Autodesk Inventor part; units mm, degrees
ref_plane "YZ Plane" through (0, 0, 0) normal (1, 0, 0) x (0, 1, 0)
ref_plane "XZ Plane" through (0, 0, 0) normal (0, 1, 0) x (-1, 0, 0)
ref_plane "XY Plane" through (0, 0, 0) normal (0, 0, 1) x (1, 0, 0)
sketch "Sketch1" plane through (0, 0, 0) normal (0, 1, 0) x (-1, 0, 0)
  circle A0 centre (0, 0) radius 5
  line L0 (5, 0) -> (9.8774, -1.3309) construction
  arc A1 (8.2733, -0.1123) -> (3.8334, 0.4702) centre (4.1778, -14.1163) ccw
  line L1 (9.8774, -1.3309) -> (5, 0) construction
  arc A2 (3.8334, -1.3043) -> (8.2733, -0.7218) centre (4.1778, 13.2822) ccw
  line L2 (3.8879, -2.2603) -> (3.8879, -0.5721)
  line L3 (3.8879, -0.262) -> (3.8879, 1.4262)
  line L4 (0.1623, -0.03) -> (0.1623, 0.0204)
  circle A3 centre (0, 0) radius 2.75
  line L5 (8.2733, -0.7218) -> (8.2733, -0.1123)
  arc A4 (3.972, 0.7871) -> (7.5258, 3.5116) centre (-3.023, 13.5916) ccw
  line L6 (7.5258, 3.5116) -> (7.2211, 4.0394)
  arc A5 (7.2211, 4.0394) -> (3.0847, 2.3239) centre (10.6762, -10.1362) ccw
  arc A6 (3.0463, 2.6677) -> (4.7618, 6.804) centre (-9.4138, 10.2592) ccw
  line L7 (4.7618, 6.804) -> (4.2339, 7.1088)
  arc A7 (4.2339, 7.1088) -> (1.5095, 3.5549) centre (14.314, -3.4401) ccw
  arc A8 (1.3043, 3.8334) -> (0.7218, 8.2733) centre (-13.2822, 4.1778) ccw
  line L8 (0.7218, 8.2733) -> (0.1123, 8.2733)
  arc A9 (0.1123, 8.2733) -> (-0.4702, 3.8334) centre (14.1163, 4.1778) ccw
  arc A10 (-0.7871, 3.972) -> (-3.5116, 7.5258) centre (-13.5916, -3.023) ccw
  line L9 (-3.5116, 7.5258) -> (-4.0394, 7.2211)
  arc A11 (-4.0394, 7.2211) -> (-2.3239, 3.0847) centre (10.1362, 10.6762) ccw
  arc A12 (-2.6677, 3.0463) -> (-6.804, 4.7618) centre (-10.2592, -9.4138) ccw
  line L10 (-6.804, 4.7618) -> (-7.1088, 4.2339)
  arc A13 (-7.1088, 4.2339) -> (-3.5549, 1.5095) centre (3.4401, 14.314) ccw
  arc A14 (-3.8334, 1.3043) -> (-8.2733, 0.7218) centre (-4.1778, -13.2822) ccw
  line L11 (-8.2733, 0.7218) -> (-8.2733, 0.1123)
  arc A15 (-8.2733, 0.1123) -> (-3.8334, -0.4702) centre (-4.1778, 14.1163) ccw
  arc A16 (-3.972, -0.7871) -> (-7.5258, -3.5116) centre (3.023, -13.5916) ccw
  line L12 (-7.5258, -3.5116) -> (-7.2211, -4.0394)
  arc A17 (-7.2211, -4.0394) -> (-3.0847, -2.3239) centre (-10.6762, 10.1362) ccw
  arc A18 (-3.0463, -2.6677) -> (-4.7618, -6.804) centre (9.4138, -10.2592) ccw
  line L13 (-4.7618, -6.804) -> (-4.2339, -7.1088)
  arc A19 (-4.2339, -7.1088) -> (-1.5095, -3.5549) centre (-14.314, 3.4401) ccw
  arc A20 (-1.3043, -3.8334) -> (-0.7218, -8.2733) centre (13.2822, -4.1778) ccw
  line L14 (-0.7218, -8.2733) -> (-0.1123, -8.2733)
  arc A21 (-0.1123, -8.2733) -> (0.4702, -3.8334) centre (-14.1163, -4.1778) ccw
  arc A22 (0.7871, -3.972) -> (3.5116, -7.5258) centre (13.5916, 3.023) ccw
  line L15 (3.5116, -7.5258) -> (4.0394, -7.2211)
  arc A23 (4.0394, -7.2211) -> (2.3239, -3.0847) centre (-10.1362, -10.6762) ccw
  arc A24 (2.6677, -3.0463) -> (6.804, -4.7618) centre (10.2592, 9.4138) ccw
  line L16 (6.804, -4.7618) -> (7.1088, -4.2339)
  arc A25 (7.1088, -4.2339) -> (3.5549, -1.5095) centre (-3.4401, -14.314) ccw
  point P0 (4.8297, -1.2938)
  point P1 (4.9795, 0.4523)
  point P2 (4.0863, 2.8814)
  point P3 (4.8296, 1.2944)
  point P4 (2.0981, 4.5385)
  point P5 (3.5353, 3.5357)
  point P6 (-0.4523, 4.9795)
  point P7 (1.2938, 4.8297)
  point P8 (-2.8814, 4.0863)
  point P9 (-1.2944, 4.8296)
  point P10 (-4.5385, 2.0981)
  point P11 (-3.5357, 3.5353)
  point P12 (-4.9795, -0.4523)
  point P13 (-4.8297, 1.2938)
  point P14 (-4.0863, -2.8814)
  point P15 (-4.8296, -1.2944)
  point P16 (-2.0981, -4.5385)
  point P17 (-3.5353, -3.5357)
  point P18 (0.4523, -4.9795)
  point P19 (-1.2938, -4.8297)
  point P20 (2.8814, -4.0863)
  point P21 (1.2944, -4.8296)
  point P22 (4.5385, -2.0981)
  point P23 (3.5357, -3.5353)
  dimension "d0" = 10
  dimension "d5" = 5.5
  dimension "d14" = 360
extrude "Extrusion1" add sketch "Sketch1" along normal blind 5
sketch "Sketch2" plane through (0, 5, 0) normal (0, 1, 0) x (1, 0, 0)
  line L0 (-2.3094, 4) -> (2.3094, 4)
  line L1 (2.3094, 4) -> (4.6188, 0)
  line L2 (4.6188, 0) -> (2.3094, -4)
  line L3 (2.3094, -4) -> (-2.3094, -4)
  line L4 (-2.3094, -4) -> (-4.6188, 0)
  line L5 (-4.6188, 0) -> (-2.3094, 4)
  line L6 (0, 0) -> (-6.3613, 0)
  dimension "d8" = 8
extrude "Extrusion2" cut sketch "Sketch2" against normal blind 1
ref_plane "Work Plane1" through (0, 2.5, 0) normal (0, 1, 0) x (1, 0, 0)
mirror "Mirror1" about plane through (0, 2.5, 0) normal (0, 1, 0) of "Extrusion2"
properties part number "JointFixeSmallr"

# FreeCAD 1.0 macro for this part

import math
import FreeCAD as App
import Part
import Sketcher
Q = App.Units.Quantity


def add_polygon(sketch, points):
    """Adds a closed chain of lines whose ends are joined by coincident constraints."""
    first, n = sketch.GeometryCount, len(points)
    for a, b in zip(points, points[1:] + points[:1]):
        sketch.addGeometry(Part.LineSegment(App.Vector(*a, 0), App.Vector(*b, 0)), False)
    for i in range(n):
        sketch.addConstraint(Sketcher.Constraint("Coincident", first + i, 2, first + (i + 1) % n, 1))

doc = App.newDocument("Part")
params = doc.addObject("Spreadsheet::Sheet", "Params")
for row, (alias, value) in enumerate([
    ("sketch1_radius", "5 mm"),
    ("sketch1_diameter", "5.5 mm"),
    ("pad1_length", "5 mm"),
    ("pocket1_length", "1 mm"),
], start=1):
    params.set(f"A{row}", alias)
    params.set(f"B{row}", "=" + value)
    params.setAlias(f"B{row}", alias)

body = doc.addObject("PartDesign::Body", "Body")

# Sketch on XZ plane
sketch1 = body.newObject("Sketcher::SketchObject", "Sketch")
sketch1.AttachmentSupport = (doc.getObject("XZ_Plane"), [""])
sketch1.MapMode = "FlatFace"
sketch1.addGeometry(Part.ArcOfCircle(Part.Circle(App.Vector(0, 0, 0), App.Vector(0, 0, 1), 5), math.radians(-135), math.radians(-125.19)), False)
sketch1.addGeometry(Part.ArcOfCircle(Part.Circle(App.Vector(-10.3, 9.4, 0), App.Vector(0, 0, 1), 14.6), math.radians(-76.3), math.radians(-62.56)), False)
sketch1.addGeometry(Part.LineSegment(App.Vector(-6.8, -4.8, 0), App.Vector(-7.1, -4.2, 0)), False)
sketch1.addGeometry(Part.ArcOfCircle(Part.Circle(App.Vector(3.4, -14.3, 0), App.Vector(0, 0, 1), 14.6), math.radians(123.15), math.radians(136.3)), False)
sketch1.addGeometry(Part.ArcOfCircle(Part.Circle(App.Vector(0, 0, 0), App.Vector(0, 0, 1), 5), math.radians(-165), math.radians(-155.19)), False)
sketch1.addGeometry(Part.ArcOfCircle(Part.Circle(App.Vector(-4.2, 13.3, 0), App.Vector(0, 0, 1), 14.6), math.radians(-106.3), math.radians(-92.56)), False)
sketch1.addGeometry(Part.LineSegment(App.Vector(-8.3, -0.7, 0), App.Vector(-8.3, -0.1, 0)), False)
sketch1.addGeometry(Part.ArcOfCircle(Part.Circle(App.Vector(-4.2, -14.1, 0), App.Vector(0, 0, 1), 14.6), math.radians(93.15), math.radians(106.3)), False)
sketch1.addGeometry(Part.ArcOfCircle(Part.Circle(App.Vector(0, 0, 0), App.Vector(0, 0, 1), 5), math.radians(165), math.radians(174.81)), False)
sketch1.addGeometry(Part.ArcOfCircle(Part.Circle(App.Vector(3, 13.6, 0), App.Vector(0, 0, 1), 14.6), math.radians(-136.3), math.radians(-122.56)), False)
sketch1.addGeometry(Part.LineSegment(App.Vector(-7.5, 3.5, 0), App.Vector(-7.2, 4, 0)), False)
sketch1.addGeometry(Part.ArcOfCircle(Part.Circle(App.Vector(-10.7, -10.1, 0), App.Vector(0, 0, 1), 14.6), math.radians(63.15), math.radians(76.3)), False)
sketch1.addGeometry(Part.ArcOfCircle(Part.Circle(App.Vector(0, 0, 0), App.Vector(0, 0, 1), 5), math.radians(135), math.radians(144.81)), False)
sketch1.addGeometry(Part.ArcOfCircle(Part.Circle(App.Vector(9.4, 10.3, 0), App.Vector(0, 0, 1), 14.6), math.radians(-166.3), math.radians(-152.56)), False)
sketch1.addGeometry(Part.LineSegment(App.Vector(-4.8, 6.8, 0), App.Vector(-4.2, 7.1, 0)), False)
sketch1.addGeometry(Part.ArcOfCircle(Part.Circle(App.Vector(-14.3, -3.4, 0), App.Vector(0, 0, 1), 14.6), math.radians(33.15), math.radians(46.3)), False)
sketch1.addGeometry(Part.ArcOfCircle(Part.Circle(App.Vector(0, 0, 0), App.Vector(0, 0, 1), 5), math.radians(105), math.radians(114.81)), False)
sketch1.addGeometry(Part.ArcOfCircle(Part.Circle(App.Vector(13.3, 4.2, 0), App.Vector(0, 0, 1), 14.6), math.radians(163.7), math.radians(177.44)), False)
sketch1.addGeometry(Part.LineSegment(App.Vector(-0.7, 8.3, 0), App.Vector(-0.1, 8.3, 0)), False)
sketch1.addGeometry(Part.ArcOfCircle(Part.Circle(App.Vector(-14.1, 4.2, 0), App.Vector(0, 0, 1), 14.6), math.radians(3.15), math.radians(16.3)), False)
sketch1.addGeometry(Part.ArcOfCircle(Part.Circle(App.Vector(0, 0, 0), App.Vector(0, 0, 1), 5), math.radians(75), math.radians(84.81)), False)
sketch1.addGeometry(Part.ArcOfCircle(Part.Circle(App.Vector(13.6, -3, 0), App.Vector(0, 0, 1), 14.6), math.radians(133.7), math.radians(147.44)), False)
sketch1.addGeometry(Part.LineSegment(App.Vector(3.5, 7.5, 0), App.Vector(4, 7.2, 0)), False)
sketch1.addGeometry(Part.ArcOfCircle(Part.Circle(App.Vector(-10.1, 10.7, 0), App.Vector(0, 0, 1), 14.6), math.radians(-26.85), math.radians(-13.7)), False)
sketch1.addGeometry(Part.ArcOfCircle(Part.Circle(App.Vector(0, 0, 0), App.Vector(0, 0, 1), 5), math.radians(45), math.radians(54.81)), False)
sketch1.addGeometry(Part.ArcOfCircle(Part.Circle(App.Vector(10.3, -9.4, 0), App.Vector(0, 0, 1), 14.6), math.radians(103.7), math.radians(117.44)), False)
sketch1.addGeometry(Part.LineSegment(App.Vector(6.8, 4.8, 0), App.Vector(7.1, 4.2, 0)), False)
sketch1.addGeometry(Part.ArcOfCircle(Part.Circle(App.Vector(-3.4, 14.3, 0), App.Vector(0, 0, 1), 14.6), math.radians(-56.85), math.radians(-43.7)), False)
sketch1.addGeometry(Part.ArcOfCircle(Part.Circle(App.Vector(0, 0, 0), App.Vector(0, 0, 1), 5), math.radians(15), math.radians(24.81)), False)
sketch1.addGeometry(Part.ArcOfCircle(Part.Circle(App.Vector(4.2, -13.3, 0), App.Vector(0, 0, 1), 14.6), math.radians(73.7), math.radians(87.44)), False)
sketch1.addGeometry(Part.LineSegment(App.Vector(8.3, 0.7, 0), App.Vector(8.3, 0.1, 0)), False)
sketch1.addGeometry(Part.ArcOfCircle(Part.Circle(App.Vector(4.2, 14.1, 0), App.Vector(0, 0, 1), 14.6), math.radians(-86.85), math.radians(-73.7)), False)
sketch1.addGeometry(Part.ArcOfCircle(Part.Circle(App.Vector(0, 0, 0), App.Vector(0, 0, 1), 5), math.radians(-15), math.radians(-5.19)), False)
sketch1.addGeometry(Part.ArcOfCircle(Part.Circle(App.Vector(-3, -13.6, 0), App.Vector(0, 0, 1), 14.6), math.radians(43.7), math.radians(57.44)), False)
sketch1.addGeometry(Part.LineSegment(App.Vector(7.5, -3.5, 0), App.Vector(7.2, -4, 0)), False)
sketch1.addGeometry(Part.ArcOfCircle(Part.Circle(App.Vector(10.7, 10.1, 0), App.Vector(0, 0, 1), 14.6), math.radians(-116.85), math.radians(-103.7)), False)
sketch1.addGeometry(Part.ArcOfCircle(Part.Circle(App.Vector(0, 0, 0), App.Vector(0, 0, 1), 5), math.radians(-45), math.radians(-35.19)), False)
sketch1.addGeometry(Part.ArcOfCircle(Part.Circle(App.Vector(-9.4, -10.3, 0), App.Vector(0, 0, 1), 14.6), math.radians(13.7), math.radians(27.44)), False)
sketch1.addGeometry(Part.LineSegment(App.Vector(4.8, -6.8, 0), App.Vector(4.2, -7.1, 0)), False)
sketch1.addGeometry(Part.ArcOfCircle(Part.Circle(App.Vector(14.3, 3.4, 0), App.Vector(0, 0, 1), 14.6), math.radians(-146.85), math.radians(-133.7)), False)
sketch1.addGeometry(Part.ArcOfCircle(Part.Circle(App.Vector(0, 0, 0), App.Vector(0, 0, 1), 5), math.radians(-75), math.radians(-65.19)), False)
sketch1.addGeometry(Part.ArcOfCircle(Part.Circle(App.Vector(-13.3, -4.2, 0), App.Vector(0, 0, 1), 14.6), math.radians(-16.3), math.radians(-2.56)), False)
sketch1.addGeometry(Part.LineSegment(App.Vector(0.7, -8.3, 0), App.Vector(0.1, -8.3, 0)), False)
sketch1.addGeometry(Part.ArcOfCircle(Part.Circle(App.Vector(14.1, -4.2, 0), App.Vector(0, 0, 1), 14.6), math.radians(-176.85), math.radians(-163.7)), False)
sketch1.addGeometry(Part.ArcOfCircle(Part.Circle(App.Vector(0, 0, 0), App.Vector(0, 0, 1), 5), math.radians(-105), math.radians(-95.19)), False)
sketch1.addGeometry(Part.ArcOfCircle(Part.Circle(App.Vector(-13.6, 3, 0), App.Vector(0, 0, 1), 14.6), math.radians(-46.3), math.radians(-32.56)), False)
sketch1.addGeometry(Part.LineSegment(App.Vector(-3.5, -7.5, 0), App.Vector(-4, -7.2, 0)), False)
sketch1.addGeometry(Part.ArcOfCircle(Part.Circle(App.Vector(10.1, -10.7, 0), App.Vector(0, 0, 1), 14.6), math.radians(153.15), math.radians(166.3)), False)
sketch1.addGeometry(Part.Circle(App.Vector(0, 0, 0), App.Vector(0, 0, 1), 2.8), False)
sketch1.addConstraint(Sketcher.Constraint("Coincident", 0, 1, 1, 2))
sketch1.addConstraint(Sketcher.Constraint("Coincident", 1, 1, 2, 1))
sketch1.addConstraint(Sketcher.Constraint("Coincident", 2, 2, 3, 2))
sketch1.addConstraint(Sketcher.Constraint("Coincident", 3, 1, 4, 2))
sketch1.addConstraint(Sketcher.Constraint("Coincident", 4, 1, 5, 2))
sketch1.addConstraint(Sketcher.Constraint("Coincident", 5, 1, 6, 1))
sketch1.addConstraint(Sketcher.Constraint("Coincident", 6, 2, 7, 2))
sketch1.addConstraint(Sketcher.Constraint("Coincident", 7, 1, 8, 2))
sketch1.addConstraint(Sketcher.Constraint("Coincident", 8, 1, 9, 2))
sketch1.addConstraint(Sketcher.Constraint("Coincident", 9, 1, 10, 1))
sketch1.addConstraint(Sketcher.Constraint("Coincident", 10, 2, 11, 2))
sketch1.addConstraint(Sketcher.Constraint("Coincident", 11, 1, 12, 2))
sketch1.addConstraint(Sketcher.Constraint("Coincident", 12, 1, 13, 2))
sketch1.addConstraint(Sketcher.Constraint("Coincident", 13, 1, 14, 1))
sketch1.addConstraint(Sketcher.Constraint("Coincident", 14, 2, 15, 2))
sketch1.addConstraint(Sketcher.Constraint("Coincident", 15, 1, 16, 2))
sketch1.addConstraint(Sketcher.Constraint("Coincident", 16, 1, 17, 2))
sketch1.addConstraint(Sketcher.Constraint("Coincident", 17, 1, 18, 1))
sketch1.addConstraint(Sketcher.Constraint("Coincident", 18, 2, 19, 2))
sketch1.addConstraint(Sketcher.Constraint("Coincident", 19, 1, 20, 2))
sketch1.addConstraint(Sketcher.Constraint("Coincident", 20, 1, 21, 2))
sketch1.addConstraint(Sketcher.Constraint("Coincident", 21, 1, 22, 1))
sketch1.addConstraint(Sketcher.Constraint("Coincident", 22, 2, 23, 2))
sketch1.addConstraint(Sketcher.Constraint("Coincident", 23, 1, 24, 2))
sketch1.addConstraint(Sketcher.Constraint("Coincident", 24, 1, 25, 2))
sketch1.addConstraint(Sketcher.Constraint("Coincident", 25, 1, 26, 1))
sketch1.addConstraint(Sketcher.Constraint("Coincident", 26, 2, 27, 2))
sketch1.addConstraint(Sketcher.Constraint("Coincident", 27, 1, 28, 2))
sketch1.addConstraint(Sketcher.Constraint("Coincident", 28, 1, 29, 2))
sketch1.addConstraint(Sketcher.Constraint("Coincident", 29, 1, 30, 1))
sketch1.addConstraint(Sketcher.Constraint("Coincident", 30, 2, 31, 2))
sketch1.addConstraint(Sketcher.Constraint("Coincident", 31, 1, 32, 2))
sketch1.addConstraint(Sketcher.Constraint("Coincident", 32, 1, 33, 2))
sketch1.addConstraint(Sketcher.Constraint("Coincident", 33, 1, 34, 1))
sketch1.addConstraint(Sketcher.Constraint("Coincident", 34, 2, 35, 2))
sketch1.addConstraint(Sketcher.Constraint("Coincident", 35, 1, 36, 2))
sketch1.addConstraint(Sketcher.Constraint("Coincident", 36, 1, 37, 2))
sketch1.addConstraint(Sketcher.Constraint("Coincident", 37, 1, 38, 1))
sketch1.addConstraint(Sketcher.Constraint("Coincident", 38, 2, 39, 2))
sketch1.addConstraint(Sketcher.Constraint("Coincident", 39, 1, 40, 2))
sketch1.addConstraint(Sketcher.Constraint("Coincident", 40, 1, 41, 2))
sketch1.addConstraint(Sketcher.Constraint("Coincident", 41, 1, 42, 1))
sketch1.addConstraint(Sketcher.Constraint("Coincident", 42, 2, 43, 2))
sketch1.addConstraint(Sketcher.Constraint("Coincident", 43, 1, 44, 2))
sketch1.addConstraint(Sketcher.Constraint("Coincident", 44, 1, 45, 2))
sketch1.addConstraint(Sketcher.Constraint("Coincident", 45, 1, 46, 1))
sketch1.addConstraint(Sketcher.Constraint("Coincident", 46, 2, 47, 2))
sketch1.addConstraint(Sketcher.Constraint("Coincident", 47, 1, 0, 2))
sketch1.addConstraint(Sketcher.Constraint("Vertical", 6))
sketch1.addConstraint(Sketcher.Constraint("Horizontal", 18))
sketch1.addConstraint(Sketcher.Constraint("Vertical", 30))
sketch1.addConstraint(Sketcher.Constraint("Horizontal", 42))
sketch1.addConstraint(Sketcher.Constraint("Coincident", 0, 3, -1, 1))
sketch1.addConstraint(Sketcher.Constraint("Coincident", 4, 3, -1, 1))
sketch1.addConstraint(Sketcher.Constraint("Coincident", 8, 3, -1, 1))
sketch1.addConstraint(Sketcher.Constraint("Coincident", 12, 3, -1, 1))
sketch1.addConstraint(Sketcher.Constraint("Coincident", 16, 3, -1, 1))
sketch1.addConstraint(Sketcher.Constraint("Coincident", 20, 3, -1, 1))
sketch1.addConstraint(Sketcher.Constraint("Coincident", 24, 3, -1, 1))
sketch1.addConstraint(Sketcher.Constraint("Coincident", 28, 3, -1, 1))
sketch1.addConstraint(Sketcher.Constraint("Coincident", 32, 3, -1, 1))
sketch1.addConstraint(Sketcher.Constraint("Coincident", 36, 3, -1, 1))
sketch1.addConstraint(Sketcher.Constraint("Coincident", 40, 3, -1, 1))
sketch1.addConstraint(Sketcher.Constraint("Coincident", 44, 3, -1, 1))
sketch1.addConstraint(Sketcher.Constraint("Coincident", 48, 3, -1, 1))
sketch1.addConstraint(Sketcher.Constraint("Equal", 0, 4))
sketch1.addConstraint(Sketcher.Constraint("Equal", 5, 7))
sketch1.addConstraint(Sketcher.Constraint("Equal", 4, 8))
sketch1.addConstraint(Sketcher.Constraint("Equal", 7, 11))
sketch1.addConstraint(Sketcher.Constraint("Equal", 8, 12))
sketch1.addConstraint(Sketcher.Constraint("Equal", 1, 13))
sketch1.addConstraint(Sketcher.Constraint("Equal", 3, 15))
sketch1.addConstraint(Sketcher.Constraint("Equal", 12, 16))
sketch1.addConstraint(Sketcher.Constraint("Equal", 11, 17))
sketch1.addConstraint(Sketcher.Constraint("Equal", 17, 19))
sketch1.addConstraint(Sketcher.Constraint("Equal", 16, 20))
sketch1.addConstraint(Sketcher.Constraint("Equal", 9, 21))
sketch1.addConstraint(Sketcher.Constraint("Equal", 19, 23))
sketch1.addConstraint(Sketcher.Constraint("Equal", 20, 24))
sketch1.addConstraint(Sketcher.Constraint("Equal", 13, 25))
sketch1.addConstraint(Sketcher.Constraint("Equal", 15, 27))
sketch1.addConstraint(Sketcher.Constraint("Equal", 24, 28))
sketch1.addConstraint(Sketcher.Constraint("Equal", 23, 29))
sketch1.addConstraint(Sketcher.Constraint("Equal", 29, 31))
sketch1.addConstraint(Sketcher.Constraint("Equal", 28, 32))
sketch1.addConstraint(Sketcher.Constraint("Equal", 21, 33))
sketch1.addConstraint(Sketcher.Constraint("Equal", 31, 35))
sketch1.addConstraint(Sketcher.Constraint("Equal", 32, 36))
sketch1.addConstraint(Sketcher.Constraint("Equal", 25, 37))
sketch1.addConstraint(Sketcher.Constraint("Equal", 27, 39))
sketch1.addConstraint(Sketcher.Constraint("Equal", 36, 40))
sketch1.addConstraint(Sketcher.Constraint("Equal", 35, 41))
sketch1.addConstraint(Sketcher.Constraint("Equal", 41, 43))
sketch1.addConstraint(Sketcher.Constraint("Equal", 40, 44))
sketch1.addConstraint(Sketcher.Constraint("Equal", 33, 45))
sketch1.addConstraint(Sketcher.Constraint("Equal", 43, 47))
sketch1.addConstraint(Sketcher.Constraint("Symmetric", 1, 3, 25, 3, -1, 1))
sketch1.addConstraint(Sketcher.Constraint("Symmetric", 3, 3, 27, 3, -1, 1))
sketch1.addConstraint(Sketcher.Constraint("Symmetric", 5, 3, 29, 3, -1, 1))
sketch1.addConstraint(Sketcher.Constraint("Symmetric", 7, 3, 31, 3, -1, 1))
sketch1.addConstraint(Sketcher.Constraint("Symmetric", 9, 3, 33, 3, -1, 1))
sketch1.addConstraint(Sketcher.Constraint("Symmetric", 11, 3, 35, 3, -1, 1))
sketch1.addConstraint(Sketcher.Constraint("Symmetric", 13, 3, 37, 3, -1, 1))
sketch1.addConstraint(Sketcher.Constraint("Symmetric", 15, 3, 39, 3, -1, 1))
sketch1.addConstraint(Sketcher.Constraint("Symmetric", 17, 3, 41, 3, -1, 1))
sketch1.addConstraint(Sketcher.Constraint("Symmetric", 19, 3, 43, 3, -1, 1))
sketch1.addConstraint(Sketcher.Constraint("Symmetric", 21, 3, 45, 3, -1, 1))
sketch1.addConstraint(Sketcher.Constraint("Symmetric", 23, 3, 47, 3, -1, 1))
sketch1.addConstraint(Sketcher.Constraint("Perpendicular", 2, 14))
sketch1.addConstraint(Sketcher.Constraint("Perpendicular", 10, 22))
sketch1.addConstraint(Sketcher.Constraint("Perpendicular", 14, 26))
sketch1.addConstraint(Sketcher.Constraint("Perpendicular", 22, 34))
sketch1.addConstraint(Sketcher.Constraint("Perpendicular", 26, 38))
sketch1.addConstraint(Sketcher.Constraint("Perpendicular", 34, 46))
sketch1.addConstraint(Sketcher.Constraint("Horizontal", 17, 3, 19, 3))
sketch1.addConstraint(Sketcher.Constraint("Horizontal", 16, 1, 20, 1))
sketch1.addConstraint(Sketcher.Constraint("Vertical", 5, 3, 7, 3))
sketch1.addConstraint(Sketcher.Constraint("Vertical", 4, 1, 8, 1))
sketch1.addConstraint(Sketcher.Constraint("Equal", 18, 42))
sketch1.addConstraint(Sketcher.Constraint("Equal", 42, 6))
sketch1.addConstraint(Sketcher.Constraint("Equal", 6, 30))
sketch1.addConstraint(Sketcher.Constraint("Equal", 2, 10))
sketch1.addConstraint(Sketcher.Constraint("Equal", 10, 14))
sketch1.addConstraint(Sketcher.Constraint("Equal", 14, 22))
sketch1.addConstraint(Sketcher.Constraint("Equal", 22, 26))
sketch1.addConstraint(Sketcher.Constraint("Equal", 26, 34))
sketch1.addConstraint(Sketcher.Constraint("Equal", 34, 38))
sketch1.addConstraint(Sketcher.Constraint("Equal", 38, 46))
sketch1.addConstraint(Sketcher.Constraint("Radius", 0, 5.0))
sketch1.addConstraint(Sketcher.Constraint("Diameter", 48, 5.5))
sketch1.addConstraint(Sketcher.Constraint("Radius", 3, 14.587))
sketch1.addConstraint(Sketcher.Constraint("Radius", 1, 14.5921))
sketch1.addConstraint(Sketcher.Constraint("Radius", 5, 14.5906))
sketch1.addConstraint(Sketcher.Constraint("Radius", 9, 14.5882))
sketch1.addConstraint(Sketcher.Constraint("DistanceX", 1, 3, -1, 1, 10.26))
sketch1.addConstraint(Sketcher.Constraint("DistanceY", -1, 1, 13, 3, 10.26))
sketch1.addConstraint(Sketcher.Constraint("DistanceX", 18, 1, 18, 2, 0.6095))
sketch1.addConstraint(Sketcher.Constraint("DistanceX", 1, 1, -1, 1, 6.804))
sketch1.addConstraint(Sketcher.Constraint("DistanceY", 2, 2, -1, 1, 4.234))
sketch1.addConstraint(Sketcher.Constraint("DistanceY", 3, 1, -1, 1, 2.098))
sketch1.addConstraint(Sketcher.Constraint("DistanceX", 10, 2, -1, 1, 7.221))
sketch1.addConstraint(Sketcher.Constraint("DistanceY", -1, 1, 13, 1, 6.804))
sketch1.addConstraint(Sketcher.Constraint("DistanceX", 14, 2, -1, 1, 4.234))
sketch1.addConstraint(Sketcher.Constraint("DistanceX", 15, 1, -1, 1, 2.098))
sketch1.addConstraint(Sketcher.Constraint("DistanceY", -1, 1, 22, 2, 7.221))
sketch1.addConstraint(Sketcher.Constraint("Distance", 2, 0.6096))
sketch1.addConstraint(Sketcher.Constraint("DistanceY", -1, 1, 1, 3, 9.4152))
sketch1.addConstraint(Sketcher.Constraint("DistanceX", 5, 3, -1, 1, 4.1778))
sketch1.addConstraint(Sketcher.Constraint("DistanceY", -1, 1, 5, 3, 13.2822))
sketch1.addConstraint(Sketcher.Constraint("DistanceY", 7, 3, -1, 1, 14.1163))
sketch1.addConstraint(Sketcher.Constraint("DistanceX", -1, 1, 9, 3, 3.0217))
sketch1.addConstraint(Sketcher.Constraint("DistanceX", 11, 3, -1, 1, 10.6762))
sketch1.addConstraint(Sketcher.Constraint("DistanceY", 11, 3, -1, 1, 10.1362))
sketch1.addConstraint(Sketcher.Constraint("DistanceX", -1, 1, 17, 3, 13.2822))
sketch1.addConstraint(Sketcher.Constraint("DistanceY", -1, 1, 17, 3, 4.1778))
sketch1.addConstraint(Sketcher.Constraint("DistanceX", 19, 3, -1, 1, 14.1163))
sketch1.addConstraint(Sketcher.Constraint("DistanceX", -1, 1, 21, 3, 13.5896))
sketch1.addConstraint(Sketcher.Constraint("DistanceX", 23, 3, -1, 1, 10.1362))
sketch1.setExpression("Constraints[128]", "Params.sketch1_radius")
sketch1.setExpression("Constraints[129]", "Params.sketch1_diameter")
pad1 = body.newObject("PartDesign::Pad", "Pad")
pad1.Profile = sketch1
pad1.setExpression("Length", "Params.pad1_length")
pad1.Reversed = True

# Sketch on XZ plane
sketch2 = body.newObject("Sketcher::SketchObject", "Sketch001")
sketch2.AttachmentSupport = (doc.getObject("XZ_Plane"), [""])
sketch2.MapMode = "FlatFace"
sketch2.AttachmentOffset = App.Placement(App.Vector(0, 0, -5), App.Rotation())
add_polygon(sketch2, [(2.3, -4), (-2.3, -4), (-4.6, 0), (-2.3, 4), (2.3, 4), (4.6, 0)])  # lines 0-5
sketch2.addConstraint(Sketcher.Constraint("Horizontal", 0))
sketch2.addConstraint(Sketcher.Constraint("Horizontal", 3))
sketch2.addConstraint(Sketcher.Constraint("Symmetric", 0, 2, 3, 2, -1, 1))
sketch2.addConstraint(Sketcher.Constraint("Symmetric", 1, 2, 4, 2, -1, 1))
sketch2.addConstraint(Sketcher.Constraint("PointOnObject", 1, 2, -1))
sketch2.addConstraint(Sketcher.Constraint("Parallel", 2, 5))
sketch2.addConstraint(Sketcher.Constraint("Vertical", 0, 2, 2, 2))
sketch2.addConstraint(Sketcher.Constraint("DistanceY", 0, 2, 2, 2, 8.0))
sketch2.addConstraint(Sketcher.Constraint("Angle", 1, Q("120 deg")))
sketch2.addConstraint(Sketcher.Constraint("DistanceX", 0, 2, 0, 1, 4.6188))
pocket1 = body.newObject("PartDesign::Pocket", "Pocket")
pocket1.Profile = sketch2
pocket1.setExpression("Length", "Params.pocket1_length")
pocket1.Reversed = True
doc.recompute()

datumplane = body.newObject("PartDesign::Plane", "DatumPlane")
datumplane.AttachmentSupport = (doc.getObject("XZ_Plane"), [""])
datumplane.MapMode = "FlatFace"
datumplane.AttachmentOffset = App.Placement(App.Vector(0, 0, -2.5), App.Rotation())
mirrored = body.newObject("PartDesign::Mirrored", "Mirrored")
mirrored.Originals = [pocket1]
mirrored.MirrorPlane = (datumplane, [""])
body.Tip = mirrored

doc.recompute()
